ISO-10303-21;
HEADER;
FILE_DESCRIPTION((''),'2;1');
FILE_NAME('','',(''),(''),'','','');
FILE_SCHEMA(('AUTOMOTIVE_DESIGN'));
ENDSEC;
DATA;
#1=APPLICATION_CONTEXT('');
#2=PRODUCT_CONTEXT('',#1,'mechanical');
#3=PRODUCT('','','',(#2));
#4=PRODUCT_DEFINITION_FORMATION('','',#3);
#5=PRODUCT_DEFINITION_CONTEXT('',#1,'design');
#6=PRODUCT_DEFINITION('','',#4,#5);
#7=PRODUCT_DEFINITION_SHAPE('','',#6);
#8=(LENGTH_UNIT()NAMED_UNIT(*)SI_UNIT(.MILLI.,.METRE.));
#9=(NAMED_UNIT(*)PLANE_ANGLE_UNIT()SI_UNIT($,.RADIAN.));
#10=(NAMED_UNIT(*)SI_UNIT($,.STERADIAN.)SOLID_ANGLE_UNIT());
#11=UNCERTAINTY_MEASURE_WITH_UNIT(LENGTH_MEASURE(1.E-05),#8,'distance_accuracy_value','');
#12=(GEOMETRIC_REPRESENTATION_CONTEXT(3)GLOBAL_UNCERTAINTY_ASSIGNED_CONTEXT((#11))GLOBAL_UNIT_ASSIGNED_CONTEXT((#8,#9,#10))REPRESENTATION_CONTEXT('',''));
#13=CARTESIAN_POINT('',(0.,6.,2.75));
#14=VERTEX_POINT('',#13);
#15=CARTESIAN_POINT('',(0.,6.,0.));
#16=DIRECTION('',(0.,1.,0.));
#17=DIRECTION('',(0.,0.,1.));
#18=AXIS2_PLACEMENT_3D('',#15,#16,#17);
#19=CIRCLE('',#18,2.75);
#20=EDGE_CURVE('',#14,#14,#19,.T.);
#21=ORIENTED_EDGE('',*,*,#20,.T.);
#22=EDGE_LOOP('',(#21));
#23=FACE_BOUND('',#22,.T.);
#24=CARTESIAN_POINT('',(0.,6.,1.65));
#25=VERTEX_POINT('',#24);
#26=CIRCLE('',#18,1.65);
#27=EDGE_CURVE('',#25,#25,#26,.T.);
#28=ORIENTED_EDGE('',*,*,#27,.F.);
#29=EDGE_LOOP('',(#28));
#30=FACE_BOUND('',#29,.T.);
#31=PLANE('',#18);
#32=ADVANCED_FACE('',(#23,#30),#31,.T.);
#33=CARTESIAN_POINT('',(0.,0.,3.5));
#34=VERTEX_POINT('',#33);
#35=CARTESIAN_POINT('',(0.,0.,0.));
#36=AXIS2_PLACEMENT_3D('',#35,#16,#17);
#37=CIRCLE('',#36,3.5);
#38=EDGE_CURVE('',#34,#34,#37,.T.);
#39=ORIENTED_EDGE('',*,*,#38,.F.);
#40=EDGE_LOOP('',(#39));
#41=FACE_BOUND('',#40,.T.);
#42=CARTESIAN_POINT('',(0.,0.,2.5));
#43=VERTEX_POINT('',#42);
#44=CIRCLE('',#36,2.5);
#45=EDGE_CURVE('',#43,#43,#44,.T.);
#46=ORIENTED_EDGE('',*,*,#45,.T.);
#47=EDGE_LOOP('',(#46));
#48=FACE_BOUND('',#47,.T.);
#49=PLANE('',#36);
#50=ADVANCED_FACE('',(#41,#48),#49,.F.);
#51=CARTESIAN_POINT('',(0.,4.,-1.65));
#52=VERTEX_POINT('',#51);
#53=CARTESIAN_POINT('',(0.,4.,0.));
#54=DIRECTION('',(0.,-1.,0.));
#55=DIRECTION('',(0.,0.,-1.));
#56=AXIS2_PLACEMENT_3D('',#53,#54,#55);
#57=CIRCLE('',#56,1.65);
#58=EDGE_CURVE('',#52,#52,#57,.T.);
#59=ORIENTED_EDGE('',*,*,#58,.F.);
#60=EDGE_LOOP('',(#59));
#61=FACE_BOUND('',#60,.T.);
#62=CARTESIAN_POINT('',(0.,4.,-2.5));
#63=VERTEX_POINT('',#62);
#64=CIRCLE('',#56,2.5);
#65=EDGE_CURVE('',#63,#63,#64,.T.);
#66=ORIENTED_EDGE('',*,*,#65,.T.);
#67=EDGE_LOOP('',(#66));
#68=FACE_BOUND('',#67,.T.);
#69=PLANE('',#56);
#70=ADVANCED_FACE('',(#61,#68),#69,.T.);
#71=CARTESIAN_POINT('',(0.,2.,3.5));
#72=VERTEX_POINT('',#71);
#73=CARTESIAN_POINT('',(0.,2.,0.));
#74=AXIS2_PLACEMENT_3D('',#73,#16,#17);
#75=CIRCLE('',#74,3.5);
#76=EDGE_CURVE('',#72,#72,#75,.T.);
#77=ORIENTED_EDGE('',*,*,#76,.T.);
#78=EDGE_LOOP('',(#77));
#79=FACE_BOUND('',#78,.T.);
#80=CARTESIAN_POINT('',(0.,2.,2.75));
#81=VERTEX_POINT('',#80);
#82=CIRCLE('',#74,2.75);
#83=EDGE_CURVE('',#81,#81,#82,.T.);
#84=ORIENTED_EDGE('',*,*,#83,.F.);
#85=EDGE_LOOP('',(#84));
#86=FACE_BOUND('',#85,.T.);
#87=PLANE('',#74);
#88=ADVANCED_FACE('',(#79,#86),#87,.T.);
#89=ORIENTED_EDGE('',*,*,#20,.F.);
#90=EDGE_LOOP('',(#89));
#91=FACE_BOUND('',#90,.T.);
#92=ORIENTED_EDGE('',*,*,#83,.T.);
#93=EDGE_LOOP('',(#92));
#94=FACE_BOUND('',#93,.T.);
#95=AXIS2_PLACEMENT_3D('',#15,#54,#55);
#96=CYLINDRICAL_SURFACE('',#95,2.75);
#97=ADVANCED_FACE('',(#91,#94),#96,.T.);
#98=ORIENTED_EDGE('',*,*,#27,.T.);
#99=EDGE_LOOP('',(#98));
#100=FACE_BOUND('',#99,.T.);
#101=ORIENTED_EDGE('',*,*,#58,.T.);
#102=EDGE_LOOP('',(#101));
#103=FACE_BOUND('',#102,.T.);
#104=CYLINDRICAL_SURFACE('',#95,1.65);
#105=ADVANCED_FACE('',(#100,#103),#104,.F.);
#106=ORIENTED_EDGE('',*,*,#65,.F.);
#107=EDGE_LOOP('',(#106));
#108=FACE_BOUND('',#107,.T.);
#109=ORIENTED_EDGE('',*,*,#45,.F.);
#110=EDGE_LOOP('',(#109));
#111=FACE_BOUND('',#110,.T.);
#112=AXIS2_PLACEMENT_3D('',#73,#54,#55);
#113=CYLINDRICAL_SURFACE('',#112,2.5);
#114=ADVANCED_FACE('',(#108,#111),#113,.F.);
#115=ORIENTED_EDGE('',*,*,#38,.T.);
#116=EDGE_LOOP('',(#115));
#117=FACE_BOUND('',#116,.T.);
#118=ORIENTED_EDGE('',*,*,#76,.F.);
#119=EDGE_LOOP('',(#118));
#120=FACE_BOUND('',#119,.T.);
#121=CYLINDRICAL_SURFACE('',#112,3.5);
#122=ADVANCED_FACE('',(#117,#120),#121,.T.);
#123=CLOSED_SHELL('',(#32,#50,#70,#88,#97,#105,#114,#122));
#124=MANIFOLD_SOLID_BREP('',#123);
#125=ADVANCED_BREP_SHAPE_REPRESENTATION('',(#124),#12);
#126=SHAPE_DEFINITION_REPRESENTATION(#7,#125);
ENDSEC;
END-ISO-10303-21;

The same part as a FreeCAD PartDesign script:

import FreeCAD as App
import Part
import Sketcher

doc = App.newDocument("Part")
body = doc.addObject("PartDesign::Body", "Body")

sketch1 = body.newObject("Sketcher::SketchObject", "Sketch")
sketch1.AttachmentSupport = (doc.getObject("XZ_Plane"), [""])
sketch1.MapMode = "FlatFace"
sketch1.addGeometry(Part.Circle(App.Vector(0, 0, 0), App.Vector(0, 0, 1), 3.5), False)
sketch1.addGeometry(Part.Circle(App.Vector(0, 0, 0), App.Vector(0, 0, 1), 2.5), False)
sketch1.addConstraint(Sketcher.Constraint("Coincident", 0, 3, -1, 1))
sketch1.addConstraint(Sketcher.Constraint("Coincident", 1, 3, -1, 1))
sketch1.addConstraint(Sketcher.Constraint("Diameter", 0, 7.0))
sketch1.addConstraint(Sketcher.Constraint("Diameter", 1, 5.0))
pad1 = body.newObject("PartDesign::Pad", "Pad")
pad1.Profile = sketch1
pad1.Length = 2
pad1.Reversed = True

sketch2 = body.newObject("Sketcher::SketchObject", "Sketch001")
sketch2.AttachmentSupport = (doc.getObject("XZ_Plane"), [""])
sketch2.MapMode = "FlatFace"
sketch2.AttachmentOffset = App.Placement(App.Vector(0, 0, -2), App.Rotation())
sketch2.addGeometry(Part.Circle(App.Vector(0, 0, 0), App.Vector(0, 0, 1), 2.8), False)
sketch2.addGeometry(Part.Circle(App.Vector(0, 0, 0), App.Vector(0, 0, 1), 1.6), False)
sketch2.addConstraint(Sketcher.Constraint("Coincident", 0, 3, -1, 1))
sketch2.addConstraint(Sketcher.Constraint("Coincident", 1, 3, -1, 1))
sketch2.addConstraint(Sketcher.Constraint("Diameter", 0, 5.5))
sketch2.addConstraint(Sketcher.Constraint("Diameter", 1, 3.3))
pad2 = body.newObject("PartDesign::Pad", "Pad001")
pad2.Profile = sketch2
pad2.Length = 4
pad2.Reversed = True

sketch3 = body.newObject("Sketcher::SketchObject", "Sketch002")
sketch3.AttachmentSupport = (doc.getObject("XZ_Plane"), [""])
sketch3.MapMode = "FlatFace"
sketch3.AttachmentOffset = App.Placement(App.Vector(0, 0, -2), App.Rotation())
sketch3.addGeometry(Part.Circle(App.Vector(0, 0, 0), App.Vector(0, 0, 1), 2.5), False)
sketch3.addConstraint(Sketcher.Constraint("Coincident", 0, 3, -1, 1))
sketch3.addConstraint(Sketcher.Constraint("Diameter", 0, 5.0))
pocket1 = body.newObject("PartDesign::Pocket", "Pocket")
pocket1.Profile = sketch3
pocket1.Length = 2

doc.recompute()
